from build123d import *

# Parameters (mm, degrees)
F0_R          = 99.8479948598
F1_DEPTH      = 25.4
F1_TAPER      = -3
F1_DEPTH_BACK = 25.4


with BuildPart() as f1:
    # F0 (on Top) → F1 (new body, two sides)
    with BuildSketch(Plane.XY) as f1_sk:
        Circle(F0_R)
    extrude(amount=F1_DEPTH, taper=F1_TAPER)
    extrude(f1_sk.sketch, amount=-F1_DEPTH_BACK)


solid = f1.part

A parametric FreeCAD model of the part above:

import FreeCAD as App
import Part
import Sketcher
Q = App.Units.Quantity

doc = App.newDocument("Part")
body = doc.addObject("PartDesign::Body", "Body")

sketch1 = body.newObject("Sketcher::SketchObject", "Sketch")
sketch1.AttachmentSupport = (doc.getObject("XY_Plane"), [""])
sketch1.MapMode = "FlatFace"
sketch1.addGeometry(Part.Circle(App.Vector(0, 0, 0), App.Vector(0, 0, 1), 99.847995), False)
sketch1.addConstraint([
    Sketcher.Constraint("Coincident", 0, 3, -1, 1),
    Sketcher.Constraint("Diameter", 0, Q("199.69599 mm")),
])
pad1 = body.newObject("PartDesign::Pad", "Pad")
pad1.Profile = sketch1
pad1.Length = Q("1 in")
pad1.TaperAngle = 3
pad2 = body.newObject("PartDesign::Pad", "Pad001")
pad2.Profile = sketch1
pad2.Length = Q("1 in")
pad2.Reversed = True

doc.recompute()
